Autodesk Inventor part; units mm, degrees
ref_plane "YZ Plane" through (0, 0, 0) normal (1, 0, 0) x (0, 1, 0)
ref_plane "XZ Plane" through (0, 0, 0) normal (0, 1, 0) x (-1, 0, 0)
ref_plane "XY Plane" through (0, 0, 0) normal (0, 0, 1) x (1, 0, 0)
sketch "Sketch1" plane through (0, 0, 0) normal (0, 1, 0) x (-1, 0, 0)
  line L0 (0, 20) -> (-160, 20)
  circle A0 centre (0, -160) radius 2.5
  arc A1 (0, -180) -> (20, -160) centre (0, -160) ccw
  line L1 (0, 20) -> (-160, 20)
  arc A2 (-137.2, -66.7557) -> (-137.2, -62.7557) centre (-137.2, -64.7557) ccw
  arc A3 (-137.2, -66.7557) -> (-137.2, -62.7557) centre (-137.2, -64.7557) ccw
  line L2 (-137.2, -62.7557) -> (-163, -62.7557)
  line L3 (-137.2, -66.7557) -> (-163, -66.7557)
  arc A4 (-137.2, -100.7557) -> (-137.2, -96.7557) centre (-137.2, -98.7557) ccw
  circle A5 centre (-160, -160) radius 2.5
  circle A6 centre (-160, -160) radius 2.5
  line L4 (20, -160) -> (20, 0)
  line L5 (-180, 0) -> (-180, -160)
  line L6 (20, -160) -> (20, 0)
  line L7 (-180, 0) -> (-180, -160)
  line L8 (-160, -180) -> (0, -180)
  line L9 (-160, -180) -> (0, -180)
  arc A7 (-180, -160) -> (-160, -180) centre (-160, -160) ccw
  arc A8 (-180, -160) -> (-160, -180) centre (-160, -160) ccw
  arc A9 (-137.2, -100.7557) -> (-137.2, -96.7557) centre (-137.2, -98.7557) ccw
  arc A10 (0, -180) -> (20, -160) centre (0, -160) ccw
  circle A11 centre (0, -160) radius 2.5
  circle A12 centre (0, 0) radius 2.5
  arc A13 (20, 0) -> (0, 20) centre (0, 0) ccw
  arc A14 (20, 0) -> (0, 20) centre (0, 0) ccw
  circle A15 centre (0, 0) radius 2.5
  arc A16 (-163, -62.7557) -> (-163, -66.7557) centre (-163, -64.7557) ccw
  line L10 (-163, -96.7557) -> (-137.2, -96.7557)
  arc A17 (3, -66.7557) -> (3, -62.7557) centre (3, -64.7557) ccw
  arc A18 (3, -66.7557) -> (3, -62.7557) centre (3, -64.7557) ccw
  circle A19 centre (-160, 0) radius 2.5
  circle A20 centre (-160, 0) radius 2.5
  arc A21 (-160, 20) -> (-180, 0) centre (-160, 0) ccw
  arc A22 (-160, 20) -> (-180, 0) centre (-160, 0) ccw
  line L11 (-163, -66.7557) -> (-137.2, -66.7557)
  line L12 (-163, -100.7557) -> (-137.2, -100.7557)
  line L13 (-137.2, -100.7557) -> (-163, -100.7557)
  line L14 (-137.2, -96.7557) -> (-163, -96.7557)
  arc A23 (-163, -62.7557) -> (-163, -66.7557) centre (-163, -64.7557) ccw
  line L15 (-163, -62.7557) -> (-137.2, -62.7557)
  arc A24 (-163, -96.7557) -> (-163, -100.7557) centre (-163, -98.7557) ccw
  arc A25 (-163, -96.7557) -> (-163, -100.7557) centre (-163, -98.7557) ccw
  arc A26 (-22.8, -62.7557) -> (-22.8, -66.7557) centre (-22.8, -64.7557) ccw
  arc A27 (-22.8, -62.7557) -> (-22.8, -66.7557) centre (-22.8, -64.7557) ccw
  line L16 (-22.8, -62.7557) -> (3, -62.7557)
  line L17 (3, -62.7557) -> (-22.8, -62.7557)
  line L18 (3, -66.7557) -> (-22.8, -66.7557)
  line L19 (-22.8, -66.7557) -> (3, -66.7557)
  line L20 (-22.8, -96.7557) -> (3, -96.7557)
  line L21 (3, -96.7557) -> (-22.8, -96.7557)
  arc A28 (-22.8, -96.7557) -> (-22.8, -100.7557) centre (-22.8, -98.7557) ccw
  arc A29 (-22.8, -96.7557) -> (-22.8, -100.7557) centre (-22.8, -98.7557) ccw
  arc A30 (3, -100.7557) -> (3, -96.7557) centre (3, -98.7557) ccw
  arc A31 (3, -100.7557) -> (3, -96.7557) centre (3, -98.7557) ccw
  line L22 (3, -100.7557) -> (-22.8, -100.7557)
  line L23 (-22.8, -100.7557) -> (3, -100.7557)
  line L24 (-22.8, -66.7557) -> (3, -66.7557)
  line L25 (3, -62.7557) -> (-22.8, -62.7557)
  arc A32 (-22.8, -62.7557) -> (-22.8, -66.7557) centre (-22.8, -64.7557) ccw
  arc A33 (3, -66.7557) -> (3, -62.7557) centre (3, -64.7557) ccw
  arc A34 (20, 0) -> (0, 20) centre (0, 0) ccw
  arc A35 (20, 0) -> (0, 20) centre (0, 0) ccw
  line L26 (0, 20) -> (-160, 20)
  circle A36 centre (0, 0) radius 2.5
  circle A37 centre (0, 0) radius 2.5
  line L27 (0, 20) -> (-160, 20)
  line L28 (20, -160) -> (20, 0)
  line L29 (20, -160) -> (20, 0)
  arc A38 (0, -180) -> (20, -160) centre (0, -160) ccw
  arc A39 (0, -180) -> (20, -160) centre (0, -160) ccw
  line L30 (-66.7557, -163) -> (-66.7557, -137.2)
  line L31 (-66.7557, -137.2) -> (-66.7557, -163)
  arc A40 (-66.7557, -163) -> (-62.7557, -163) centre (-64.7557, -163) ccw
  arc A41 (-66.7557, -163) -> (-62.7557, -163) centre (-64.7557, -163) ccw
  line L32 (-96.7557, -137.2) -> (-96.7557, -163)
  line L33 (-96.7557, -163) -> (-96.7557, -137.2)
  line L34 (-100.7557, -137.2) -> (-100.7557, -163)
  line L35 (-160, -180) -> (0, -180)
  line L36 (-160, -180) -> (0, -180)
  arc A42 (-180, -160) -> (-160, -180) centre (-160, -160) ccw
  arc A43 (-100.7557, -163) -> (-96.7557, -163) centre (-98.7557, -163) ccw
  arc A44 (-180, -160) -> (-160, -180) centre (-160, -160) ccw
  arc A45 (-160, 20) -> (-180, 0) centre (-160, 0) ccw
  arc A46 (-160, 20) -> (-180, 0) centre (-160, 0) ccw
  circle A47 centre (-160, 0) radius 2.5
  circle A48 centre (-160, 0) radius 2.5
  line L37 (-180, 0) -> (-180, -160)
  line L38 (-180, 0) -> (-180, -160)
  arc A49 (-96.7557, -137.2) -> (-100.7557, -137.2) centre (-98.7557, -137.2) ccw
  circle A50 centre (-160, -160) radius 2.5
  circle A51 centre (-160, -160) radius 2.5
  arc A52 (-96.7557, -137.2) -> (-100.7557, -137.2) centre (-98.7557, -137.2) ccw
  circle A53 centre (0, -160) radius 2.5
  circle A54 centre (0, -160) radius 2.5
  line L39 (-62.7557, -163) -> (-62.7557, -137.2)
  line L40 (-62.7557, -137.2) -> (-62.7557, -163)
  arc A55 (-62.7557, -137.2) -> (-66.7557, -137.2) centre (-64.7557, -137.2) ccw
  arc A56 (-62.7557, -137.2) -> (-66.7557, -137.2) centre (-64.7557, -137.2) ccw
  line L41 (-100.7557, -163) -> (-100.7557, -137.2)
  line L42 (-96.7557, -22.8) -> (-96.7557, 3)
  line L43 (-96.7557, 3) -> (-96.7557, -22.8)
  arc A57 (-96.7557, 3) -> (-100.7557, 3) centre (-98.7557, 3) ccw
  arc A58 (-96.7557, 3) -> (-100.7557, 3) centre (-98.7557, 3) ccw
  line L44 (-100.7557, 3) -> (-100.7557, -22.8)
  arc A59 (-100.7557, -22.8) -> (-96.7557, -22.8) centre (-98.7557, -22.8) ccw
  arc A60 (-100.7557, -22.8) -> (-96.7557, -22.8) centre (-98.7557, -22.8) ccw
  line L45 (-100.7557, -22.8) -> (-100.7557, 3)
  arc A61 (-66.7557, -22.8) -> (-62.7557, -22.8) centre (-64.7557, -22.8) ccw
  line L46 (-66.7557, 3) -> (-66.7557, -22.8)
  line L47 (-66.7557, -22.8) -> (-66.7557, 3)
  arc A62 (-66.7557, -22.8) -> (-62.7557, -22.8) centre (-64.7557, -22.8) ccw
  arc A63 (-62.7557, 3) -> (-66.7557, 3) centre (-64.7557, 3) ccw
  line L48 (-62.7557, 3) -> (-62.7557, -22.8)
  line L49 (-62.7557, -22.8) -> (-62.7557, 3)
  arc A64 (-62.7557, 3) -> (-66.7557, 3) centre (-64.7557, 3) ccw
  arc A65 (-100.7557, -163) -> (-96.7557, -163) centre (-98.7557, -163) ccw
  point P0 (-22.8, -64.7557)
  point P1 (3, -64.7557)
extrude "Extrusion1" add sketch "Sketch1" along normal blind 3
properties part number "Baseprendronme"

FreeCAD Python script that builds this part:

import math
import FreeCAD as App
import Part
import Sketcher

doc = App.newDocument("Part")
body = doc.addObject("PartDesign::Body", "Body")

# Sketch on XZ plane
sketch1 = body.newObject("Sketcher::SketchObject", "Sketch")
sketch1.AttachmentSupport = (doc.getObject("XZ_Plane"), [""])
sketch1.MapMode = "FlatFace"
sketch1.addGeometry([
    Part.ArcOfCircle(Part.Circle(App.Vector(0, 0, 0), App.Vector(0, 0, 1), 20), math.radians(90), math.radians(180)),  # 0
    Part.LineSegment(App.Vector(0, 20, 0), App.Vector(160, 20, 0)),  # 1
    Part.ArcOfCircle(Part.Circle(App.Vector(160, 0, 0), App.Vector(0, 0, 1), 20), math.radians(0), math.radians(90)),  # 2
    Part.LineSegment(App.Vector(180, 0, 0), App.Vector(180, -160, 0)),  # 3
    Part.ArcOfCircle(Part.Circle(App.Vector(160, -160, 0), App.Vector(0, 0, 1), 20), math.radians(-90), math.radians(0)),  # 4
    Part.LineSegment(App.Vector(160, -180, 0), App.Vector(0, -180, 0)),  # 5
    Part.ArcOfCircle(Part.Circle(App.Vector(0, -160, 0), App.Vector(0, 0, 1), 20), math.radians(180), math.radians(270)),  # 6
    Part.LineSegment(App.Vector(-20, -160, 0), App.Vector(-20, 0, 0)),  # 7
    Part.Circle(App.Vector(160, -160, 0), App.Vector(0, 0, 1), 2.5),  # 8
    Part.ArcOfCircle(Part.Circle(App.Vector(98.7557, -137.2, 0), App.Vector(0, 0, 1), 2), math.radians(0), math.radians(180)),  # 9
    Part.LineSegment(App.Vector(96.7557, -137.2, 0), App.Vector(96.7557, -163, 0)),  # 10
    Part.ArcOfCircle(Part.Circle(App.Vector(98.7557, -163, 0), App.Vector(0, 0, 1), 2), math.radians(180), math.radians(360)),  # 11
    Part.LineSegment(App.Vector(100.7557, -163, 0), App.Vector(100.7557, -137.2, 0)),  # 12
    Part.ArcOfCircle(Part.Circle(App.Vector(137.2, -98.7557, 0), App.Vector(0, 0, 1), 2), math.radians(90), math.radians(270)),  # 13
    Part.LineSegment(App.Vector(137.2, -100.7557, 0), App.Vector(163, -100.7557, 0)),  # 14
    Part.ArcOfCircle(Part.Circle(App.Vector(163, -98.7557, 0), App.Vector(0, 0, 1), 2), math.radians(-90), math.radians(90)),  # 15
    Part.LineSegment(App.Vector(163, -96.7557, 0), App.Vector(137.2, -96.7557, 0)),  # 16
    Part.ArcOfCircle(Part.Circle(App.Vector(64.7557, -163, 0), App.Vector(0, 0, 1), 2), math.radians(180), math.radians(360)),  # 17
    Part.LineSegment(App.Vector(66.7557, -163, 0), App.Vector(66.7557, -137.2, 0)),  # 18
    Part.ArcOfCircle(Part.Circle(App.Vector(64.7557, -137.2, 0), App.Vector(0, 0, 1), 2), math.radians(0), math.radians(180)),  # 19
    Part.LineSegment(App.Vector(62.7557, -137.2, 0), App.Vector(62.7557, -163, 0)),  # 20
    Part.Circle(App.Vector(0, -160, 0), App.Vector(0, 0, 1), 2.5),  # 21
    Part.ArcOfCircle(Part.Circle(App.Vector(22.8, -98.7557, 0), App.Vector(0, 0, 1), 2), math.radians(-90), math.radians(90)),  # 22
    Part.LineSegment(App.Vector(22.8, -96.7557, 0), App.Vector(-3, -96.7557, 0)),  # 23
    Part.ArcOfCircle(Part.Circle(App.Vector(-3, -98.7557, 0), App.Vector(0, 0, 1), 2), math.radians(90), math.radians(270)),  # 24
    Part.LineSegment(App.Vector(-3, -100.7557, 0), App.Vector(22.8, -100.7557, 0)),  # 25
    Part.ArcOfCircle(Part.Circle(App.Vector(137.2, -64.7557, 0), App.Vector(0, 0, 1), 2), math.radians(90), math.radians(270)),  # 26
    Part.LineSegment(App.Vector(137.2, -66.7557, 0), App.Vector(163, -66.7557, 0)),  # 27
    Part.ArcOfCircle(Part.Circle(App.Vector(163, -64.7557, 0), App.Vector(0, 0, 1), 2), math.radians(-90), math.radians(90)),  # 28
    Part.LineSegment(App.Vector(163, -62.7557, 0), App.Vector(137.2, -62.7557, 0)),  # 29
    Part.Circle(App.Vector(160, 0, 0), App.Vector(0, 0, 1), 2.5),  # 30
    Part.LineSegment(App.Vector(96.7557, 3, 0), App.Vector(96.7557, -22.8, 0)),  # 31
    Part.ArcOfCircle(Part.Circle(App.Vector(98.7557, -22.8, 0), App.Vector(0, 0, 1), 2), math.radians(180), math.radians(360)),  # 32
    Part.LineSegment(App.Vector(100.7557, -22.8, 0), App.Vector(100.7557, 3, 0)),  # 33
    Part.ArcOfCircle(Part.Circle(App.Vector(98.7557, 3, 0), App.Vector(0, 0, 1), 2), math.radians(0), math.radians(180)),  # 34
    Part.ArcOfCircle(Part.Circle(App.Vector(-3, -64.7557, 0), App.Vector(0, 0, 1), 2), math.radians(90), math.radians(270)),  # 35
    Part.LineSegment(App.Vector(-3, -66.7557, 0), App.Vector(22.8, -66.7557, 0)),  # 36
    Part.ArcOfCircle(Part.Circle(App.Vector(22.8, -64.7557, 0), App.Vector(0, 0, 1), 2), math.radians(-90), math.radians(90)),  # 37
    Part.LineSegment(App.Vector(22.8, -62.7557, 0), App.Vector(-3, -62.7557, 0)),  # 38
    Part.ArcOfCircle(Part.Circle(App.Vector(64.7557, -22.8, 0), App.Vector(0, 0, 1), 2), math.radians(180), math.radians(360)),  # 39
    Part.LineSegment(App.Vector(66.7557, -22.8, 0), App.Vector(66.7557, 3, 0)),  # 40
    Part.ArcOfCircle(Part.Circle(App.Vector(64.7557, 3, 0), App.Vector(0, 0, 1), 2), math.radians(0), math.radians(180)),  # 41
    Part.LineSegment(App.Vector(62.7557, 3, 0), App.Vector(62.7557, -22.8, 0)),  # 42
    Part.Circle(App.Vector(0, 0, 0), App.Vector(0, 0, 1), 2.5),  # 43
], False)
sketch1.addConstraint([
    Sketcher.Constraint("Tangent", 0, 1, 1, 1),
    Sketcher.Constraint("Tangent", 1, 2, 2, 2),
    Sketcher.Constraint("Tangent", 2, 1, 3, 1),
    Sketcher.Constraint("Tangent", 3, 2, 4, 2),
    Sketcher.Constraint("Tangent", 4, 1, 5, 1),
    Sketcher.Constraint("Tangent", 5, 2, 6, 2),
    Sketcher.Constraint("Tangent", 6, 1, 7, 1),
    Sketcher.Constraint("Tangent", 7, 2, 0, 2),
    Sketcher.Constraint("Tangent", 9, 2, 10, 1),
    Sketcher.Constraint("Tangent", 10, 2, 11, 1),
    Sketcher.Constraint("Tangent", 11, 2, 12, 1),
    Sketcher.Constraint("Tangent", 12, 2, 9, 1),
    Sketcher.Constraint("Tangent", 13, 2, 14, 1),
    Sketcher.Constraint("Tangent", 14, 2, 15, 1),
    Sketcher.Constraint("Tangent", 15, 2, 16, 1),
    Sketcher.Constraint("Tangent", 16, 2, 13, 1),
    Sketcher.Constraint("Tangent", 17, 2, 18, 1),
    Sketcher.Constraint("Tangent", 18, 2, 19, 1),
    Sketcher.Constraint("Tangent", 19, 2, 20, 1),
    Sketcher.Constraint("Tangent", 20, 2, 17, 1),
    Sketcher.Constraint("Tangent", 22, 2, 23, 1),
    Sketcher.Constraint("Tangent", 23, 2, 24, 1),
    Sketcher.Constraint("Tangent", 24, 2, 25, 1),
    Sketcher.Constraint("Tangent", 25, 2, 22, 1),
    Sketcher.Constraint("Tangent", 26, 2, 27, 1),
    Sketcher.Constraint("Tangent", 27, 2, 28, 1),
    Sketcher.Constraint("Tangent", 28, 2, 29, 1),
    Sketcher.Constraint("Tangent", 29, 2, 26, 1),
    Sketcher.Constraint("Tangent", 31, 2, 32, 1),
    Sketcher.Constraint("Tangent", 32, 2, 33, 1),
    Sketcher.Constraint("Tangent", 33, 2, 34, 1),
    Sketcher.Constraint("Tangent", 34, 2, 31, 1),
    Sketcher.Constraint("Tangent", 35, 2, 36, 1),
    Sketcher.Constraint("Tangent", 36, 2, 37, 1),
    Sketcher.Constraint("Tangent", 37, 2, 38, 1),
    Sketcher.Constraint("Tangent", 38, 2, 35, 1),
    Sketcher.Constraint("Tangent", 39, 2, 40, 1),
    Sketcher.Constraint("Tangent", 40, 2, 41, 1),
    Sketcher.Constraint("Tangent", 41, 2, 42, 1),
    Sketcher.Constraint("Tangent", 42, 2, 39, 1),
    Sketcher.Constraint("Horizontal", 1),
    Sketcher.Constraint("Vertical", 3),
    Sketcher.Constraint("Horizontal", 5),
    Sketcher.Constraint("Vertical", 7),
    Sketcher.Constraint("Vertical", 10),
    Sketcher.Constraint("Vertical", 12),
    Sketcher.Constraint("Horizontal", 14),
    Sketcher.Constraint("Horizontal", 16),
    Sketcher.Constraint("Vertical", 18),
    Sketcher.Constraint("Vertical", 20),
    Sketcher.Constraint("Horizontal", 23),
    Sketcher.Constraint("Horizontal", 25),
    Sketcher.Constraint("Horizontal", 27),
    Sketcher.Constraint("Horizontal", 29),
    Sketcher.Constraint("Vertical", 31),
    Sketcher.Constraint("Vertical", 33),
    Sketcher.Constraint("Horizontal", 36),
    Sketcher.Constraint("Horizontal", 38),
    Sketcher.Constraint("Vertical", 40),
    Sketcher.Constraint("Vertical", 42),
    Sketcher.Constraint("Coincident", 0, 3, -1, 1),
    Sketcher.Constraint("Coincident", 43, 3, -1, 1),
    Sketcher.Constraint("Coincident", 8, 3, 4, 3),
    Sketcher.Constraint("Coincident", 21, 3, 6, 3),
    Sketcher.Constraint("Coincident", 30, 3, 2, 3),
    Sketcher.Constraint("Equal", 0, 2),
    Sketcher.Constraint("Equal", 2, 4),
    Sketcher.Constraint("Equal", 4, 6),
    Sketcher.Constraint("Equal", 11, 13),
    Sketcher.Constraint("Equal", 15, 17),
    Sketcher.Constraint("Equal", 8, 21),
    Sketcher.Constraint("Equal", 19, 22),
    Sketcher.Constraint("Equal", 24, 26),
    Sketcher.Constraint("Equal", 21, 30),
    Sketcher.Constraint("Equal", 28, 32),
    Sketcher.Constraint("Equal", 34, 35),
    Sketcher.Constraint("Equal", 37, 39),
    Sketcher.Constraint("Equal", 30, 43),
    Sketcher.Constraint("Horizontal", 11, 3, 17, 3),
    Sketcher.Constraint("Horizontal", 9, 3, 19, 3),
    Sketcher.Constraint("Horizontal", 15, 3, 22, 3),
    Sketcher.Constraint("Horizontal", 28, 3, 35, 3),
    Sketcher.Constraint("Horizontal", 32, 3, 39, 3),
    Sketcher.Constraint("Horizontal", 34, 3, 41, 3),
    Sketcher.Constraint("Vertical", 13, 3, 26, 3),
    Sketcher.Constraint("Vertical", 15, 3, 28, 3),
    Sketcher.Constraint("Vertical", 11, 3, 32, 3),
    Sketcher.Constraint("Vertical", 24, 3, 35, 3),
    Sketcher.Constraint("Vertical", 22, 3, 37, 3),
    Sketcher.Constraint("Vertical", 19, 3, 39, 3),
    Sketcher.Constraint("Equal", 16, 23),
    Sketcher.Constraint("Equal", 5, 3),
    Sketcher.Constraint("Equal", 38, 10),
    Sketcher.Constraint("Equal", 20, 31),
    Sketcher.Constraint("Diameter", 8, 5.0),
    Sketcher.Constraint("Radius", 0, 20.0),
    Sketcher.Constraint("Radius", 9, 2.0),
    Sketcher.Constraint("DistanceX", 1, 1, 1, 2, 160.0),
    Sketcher.Constraint("DistanceX", 14, 1, 14, 2, 25.8),
    Sketcher.Constraint("DistanceY", 11, 3, -1, 1, 163.0),
    Sketcher.Constraint("DistanceX", -1, 1, 15, 3, 163.0),
    Sketcher.Constraint("DistanceX", 24, 3, -1, 1, 3.0),
    Sketcher.Constraint("DistanceY", -1, 1, 34, 3, 3.0),
    Sketcher.Constraint("DistanceX", -1, 1, 9, 3, 98.7557),
    Sketcher.Constraint("DistanceY", 13, 3, -1, 1, 98.7557),
    Sketcher.Constraint("DistanceX", -1, 1, 17, 3, 64.7557),
    Sketcher.Constraint("DistanceY", 26, 3, -1, 1, 64.7557),
])
pad1 = body.newObject("PartDesign::Pad", "Pad")
pad1.Profile = sketch1
pad1.Length = 3
pad1.Reversed = True

doc.recompute()
